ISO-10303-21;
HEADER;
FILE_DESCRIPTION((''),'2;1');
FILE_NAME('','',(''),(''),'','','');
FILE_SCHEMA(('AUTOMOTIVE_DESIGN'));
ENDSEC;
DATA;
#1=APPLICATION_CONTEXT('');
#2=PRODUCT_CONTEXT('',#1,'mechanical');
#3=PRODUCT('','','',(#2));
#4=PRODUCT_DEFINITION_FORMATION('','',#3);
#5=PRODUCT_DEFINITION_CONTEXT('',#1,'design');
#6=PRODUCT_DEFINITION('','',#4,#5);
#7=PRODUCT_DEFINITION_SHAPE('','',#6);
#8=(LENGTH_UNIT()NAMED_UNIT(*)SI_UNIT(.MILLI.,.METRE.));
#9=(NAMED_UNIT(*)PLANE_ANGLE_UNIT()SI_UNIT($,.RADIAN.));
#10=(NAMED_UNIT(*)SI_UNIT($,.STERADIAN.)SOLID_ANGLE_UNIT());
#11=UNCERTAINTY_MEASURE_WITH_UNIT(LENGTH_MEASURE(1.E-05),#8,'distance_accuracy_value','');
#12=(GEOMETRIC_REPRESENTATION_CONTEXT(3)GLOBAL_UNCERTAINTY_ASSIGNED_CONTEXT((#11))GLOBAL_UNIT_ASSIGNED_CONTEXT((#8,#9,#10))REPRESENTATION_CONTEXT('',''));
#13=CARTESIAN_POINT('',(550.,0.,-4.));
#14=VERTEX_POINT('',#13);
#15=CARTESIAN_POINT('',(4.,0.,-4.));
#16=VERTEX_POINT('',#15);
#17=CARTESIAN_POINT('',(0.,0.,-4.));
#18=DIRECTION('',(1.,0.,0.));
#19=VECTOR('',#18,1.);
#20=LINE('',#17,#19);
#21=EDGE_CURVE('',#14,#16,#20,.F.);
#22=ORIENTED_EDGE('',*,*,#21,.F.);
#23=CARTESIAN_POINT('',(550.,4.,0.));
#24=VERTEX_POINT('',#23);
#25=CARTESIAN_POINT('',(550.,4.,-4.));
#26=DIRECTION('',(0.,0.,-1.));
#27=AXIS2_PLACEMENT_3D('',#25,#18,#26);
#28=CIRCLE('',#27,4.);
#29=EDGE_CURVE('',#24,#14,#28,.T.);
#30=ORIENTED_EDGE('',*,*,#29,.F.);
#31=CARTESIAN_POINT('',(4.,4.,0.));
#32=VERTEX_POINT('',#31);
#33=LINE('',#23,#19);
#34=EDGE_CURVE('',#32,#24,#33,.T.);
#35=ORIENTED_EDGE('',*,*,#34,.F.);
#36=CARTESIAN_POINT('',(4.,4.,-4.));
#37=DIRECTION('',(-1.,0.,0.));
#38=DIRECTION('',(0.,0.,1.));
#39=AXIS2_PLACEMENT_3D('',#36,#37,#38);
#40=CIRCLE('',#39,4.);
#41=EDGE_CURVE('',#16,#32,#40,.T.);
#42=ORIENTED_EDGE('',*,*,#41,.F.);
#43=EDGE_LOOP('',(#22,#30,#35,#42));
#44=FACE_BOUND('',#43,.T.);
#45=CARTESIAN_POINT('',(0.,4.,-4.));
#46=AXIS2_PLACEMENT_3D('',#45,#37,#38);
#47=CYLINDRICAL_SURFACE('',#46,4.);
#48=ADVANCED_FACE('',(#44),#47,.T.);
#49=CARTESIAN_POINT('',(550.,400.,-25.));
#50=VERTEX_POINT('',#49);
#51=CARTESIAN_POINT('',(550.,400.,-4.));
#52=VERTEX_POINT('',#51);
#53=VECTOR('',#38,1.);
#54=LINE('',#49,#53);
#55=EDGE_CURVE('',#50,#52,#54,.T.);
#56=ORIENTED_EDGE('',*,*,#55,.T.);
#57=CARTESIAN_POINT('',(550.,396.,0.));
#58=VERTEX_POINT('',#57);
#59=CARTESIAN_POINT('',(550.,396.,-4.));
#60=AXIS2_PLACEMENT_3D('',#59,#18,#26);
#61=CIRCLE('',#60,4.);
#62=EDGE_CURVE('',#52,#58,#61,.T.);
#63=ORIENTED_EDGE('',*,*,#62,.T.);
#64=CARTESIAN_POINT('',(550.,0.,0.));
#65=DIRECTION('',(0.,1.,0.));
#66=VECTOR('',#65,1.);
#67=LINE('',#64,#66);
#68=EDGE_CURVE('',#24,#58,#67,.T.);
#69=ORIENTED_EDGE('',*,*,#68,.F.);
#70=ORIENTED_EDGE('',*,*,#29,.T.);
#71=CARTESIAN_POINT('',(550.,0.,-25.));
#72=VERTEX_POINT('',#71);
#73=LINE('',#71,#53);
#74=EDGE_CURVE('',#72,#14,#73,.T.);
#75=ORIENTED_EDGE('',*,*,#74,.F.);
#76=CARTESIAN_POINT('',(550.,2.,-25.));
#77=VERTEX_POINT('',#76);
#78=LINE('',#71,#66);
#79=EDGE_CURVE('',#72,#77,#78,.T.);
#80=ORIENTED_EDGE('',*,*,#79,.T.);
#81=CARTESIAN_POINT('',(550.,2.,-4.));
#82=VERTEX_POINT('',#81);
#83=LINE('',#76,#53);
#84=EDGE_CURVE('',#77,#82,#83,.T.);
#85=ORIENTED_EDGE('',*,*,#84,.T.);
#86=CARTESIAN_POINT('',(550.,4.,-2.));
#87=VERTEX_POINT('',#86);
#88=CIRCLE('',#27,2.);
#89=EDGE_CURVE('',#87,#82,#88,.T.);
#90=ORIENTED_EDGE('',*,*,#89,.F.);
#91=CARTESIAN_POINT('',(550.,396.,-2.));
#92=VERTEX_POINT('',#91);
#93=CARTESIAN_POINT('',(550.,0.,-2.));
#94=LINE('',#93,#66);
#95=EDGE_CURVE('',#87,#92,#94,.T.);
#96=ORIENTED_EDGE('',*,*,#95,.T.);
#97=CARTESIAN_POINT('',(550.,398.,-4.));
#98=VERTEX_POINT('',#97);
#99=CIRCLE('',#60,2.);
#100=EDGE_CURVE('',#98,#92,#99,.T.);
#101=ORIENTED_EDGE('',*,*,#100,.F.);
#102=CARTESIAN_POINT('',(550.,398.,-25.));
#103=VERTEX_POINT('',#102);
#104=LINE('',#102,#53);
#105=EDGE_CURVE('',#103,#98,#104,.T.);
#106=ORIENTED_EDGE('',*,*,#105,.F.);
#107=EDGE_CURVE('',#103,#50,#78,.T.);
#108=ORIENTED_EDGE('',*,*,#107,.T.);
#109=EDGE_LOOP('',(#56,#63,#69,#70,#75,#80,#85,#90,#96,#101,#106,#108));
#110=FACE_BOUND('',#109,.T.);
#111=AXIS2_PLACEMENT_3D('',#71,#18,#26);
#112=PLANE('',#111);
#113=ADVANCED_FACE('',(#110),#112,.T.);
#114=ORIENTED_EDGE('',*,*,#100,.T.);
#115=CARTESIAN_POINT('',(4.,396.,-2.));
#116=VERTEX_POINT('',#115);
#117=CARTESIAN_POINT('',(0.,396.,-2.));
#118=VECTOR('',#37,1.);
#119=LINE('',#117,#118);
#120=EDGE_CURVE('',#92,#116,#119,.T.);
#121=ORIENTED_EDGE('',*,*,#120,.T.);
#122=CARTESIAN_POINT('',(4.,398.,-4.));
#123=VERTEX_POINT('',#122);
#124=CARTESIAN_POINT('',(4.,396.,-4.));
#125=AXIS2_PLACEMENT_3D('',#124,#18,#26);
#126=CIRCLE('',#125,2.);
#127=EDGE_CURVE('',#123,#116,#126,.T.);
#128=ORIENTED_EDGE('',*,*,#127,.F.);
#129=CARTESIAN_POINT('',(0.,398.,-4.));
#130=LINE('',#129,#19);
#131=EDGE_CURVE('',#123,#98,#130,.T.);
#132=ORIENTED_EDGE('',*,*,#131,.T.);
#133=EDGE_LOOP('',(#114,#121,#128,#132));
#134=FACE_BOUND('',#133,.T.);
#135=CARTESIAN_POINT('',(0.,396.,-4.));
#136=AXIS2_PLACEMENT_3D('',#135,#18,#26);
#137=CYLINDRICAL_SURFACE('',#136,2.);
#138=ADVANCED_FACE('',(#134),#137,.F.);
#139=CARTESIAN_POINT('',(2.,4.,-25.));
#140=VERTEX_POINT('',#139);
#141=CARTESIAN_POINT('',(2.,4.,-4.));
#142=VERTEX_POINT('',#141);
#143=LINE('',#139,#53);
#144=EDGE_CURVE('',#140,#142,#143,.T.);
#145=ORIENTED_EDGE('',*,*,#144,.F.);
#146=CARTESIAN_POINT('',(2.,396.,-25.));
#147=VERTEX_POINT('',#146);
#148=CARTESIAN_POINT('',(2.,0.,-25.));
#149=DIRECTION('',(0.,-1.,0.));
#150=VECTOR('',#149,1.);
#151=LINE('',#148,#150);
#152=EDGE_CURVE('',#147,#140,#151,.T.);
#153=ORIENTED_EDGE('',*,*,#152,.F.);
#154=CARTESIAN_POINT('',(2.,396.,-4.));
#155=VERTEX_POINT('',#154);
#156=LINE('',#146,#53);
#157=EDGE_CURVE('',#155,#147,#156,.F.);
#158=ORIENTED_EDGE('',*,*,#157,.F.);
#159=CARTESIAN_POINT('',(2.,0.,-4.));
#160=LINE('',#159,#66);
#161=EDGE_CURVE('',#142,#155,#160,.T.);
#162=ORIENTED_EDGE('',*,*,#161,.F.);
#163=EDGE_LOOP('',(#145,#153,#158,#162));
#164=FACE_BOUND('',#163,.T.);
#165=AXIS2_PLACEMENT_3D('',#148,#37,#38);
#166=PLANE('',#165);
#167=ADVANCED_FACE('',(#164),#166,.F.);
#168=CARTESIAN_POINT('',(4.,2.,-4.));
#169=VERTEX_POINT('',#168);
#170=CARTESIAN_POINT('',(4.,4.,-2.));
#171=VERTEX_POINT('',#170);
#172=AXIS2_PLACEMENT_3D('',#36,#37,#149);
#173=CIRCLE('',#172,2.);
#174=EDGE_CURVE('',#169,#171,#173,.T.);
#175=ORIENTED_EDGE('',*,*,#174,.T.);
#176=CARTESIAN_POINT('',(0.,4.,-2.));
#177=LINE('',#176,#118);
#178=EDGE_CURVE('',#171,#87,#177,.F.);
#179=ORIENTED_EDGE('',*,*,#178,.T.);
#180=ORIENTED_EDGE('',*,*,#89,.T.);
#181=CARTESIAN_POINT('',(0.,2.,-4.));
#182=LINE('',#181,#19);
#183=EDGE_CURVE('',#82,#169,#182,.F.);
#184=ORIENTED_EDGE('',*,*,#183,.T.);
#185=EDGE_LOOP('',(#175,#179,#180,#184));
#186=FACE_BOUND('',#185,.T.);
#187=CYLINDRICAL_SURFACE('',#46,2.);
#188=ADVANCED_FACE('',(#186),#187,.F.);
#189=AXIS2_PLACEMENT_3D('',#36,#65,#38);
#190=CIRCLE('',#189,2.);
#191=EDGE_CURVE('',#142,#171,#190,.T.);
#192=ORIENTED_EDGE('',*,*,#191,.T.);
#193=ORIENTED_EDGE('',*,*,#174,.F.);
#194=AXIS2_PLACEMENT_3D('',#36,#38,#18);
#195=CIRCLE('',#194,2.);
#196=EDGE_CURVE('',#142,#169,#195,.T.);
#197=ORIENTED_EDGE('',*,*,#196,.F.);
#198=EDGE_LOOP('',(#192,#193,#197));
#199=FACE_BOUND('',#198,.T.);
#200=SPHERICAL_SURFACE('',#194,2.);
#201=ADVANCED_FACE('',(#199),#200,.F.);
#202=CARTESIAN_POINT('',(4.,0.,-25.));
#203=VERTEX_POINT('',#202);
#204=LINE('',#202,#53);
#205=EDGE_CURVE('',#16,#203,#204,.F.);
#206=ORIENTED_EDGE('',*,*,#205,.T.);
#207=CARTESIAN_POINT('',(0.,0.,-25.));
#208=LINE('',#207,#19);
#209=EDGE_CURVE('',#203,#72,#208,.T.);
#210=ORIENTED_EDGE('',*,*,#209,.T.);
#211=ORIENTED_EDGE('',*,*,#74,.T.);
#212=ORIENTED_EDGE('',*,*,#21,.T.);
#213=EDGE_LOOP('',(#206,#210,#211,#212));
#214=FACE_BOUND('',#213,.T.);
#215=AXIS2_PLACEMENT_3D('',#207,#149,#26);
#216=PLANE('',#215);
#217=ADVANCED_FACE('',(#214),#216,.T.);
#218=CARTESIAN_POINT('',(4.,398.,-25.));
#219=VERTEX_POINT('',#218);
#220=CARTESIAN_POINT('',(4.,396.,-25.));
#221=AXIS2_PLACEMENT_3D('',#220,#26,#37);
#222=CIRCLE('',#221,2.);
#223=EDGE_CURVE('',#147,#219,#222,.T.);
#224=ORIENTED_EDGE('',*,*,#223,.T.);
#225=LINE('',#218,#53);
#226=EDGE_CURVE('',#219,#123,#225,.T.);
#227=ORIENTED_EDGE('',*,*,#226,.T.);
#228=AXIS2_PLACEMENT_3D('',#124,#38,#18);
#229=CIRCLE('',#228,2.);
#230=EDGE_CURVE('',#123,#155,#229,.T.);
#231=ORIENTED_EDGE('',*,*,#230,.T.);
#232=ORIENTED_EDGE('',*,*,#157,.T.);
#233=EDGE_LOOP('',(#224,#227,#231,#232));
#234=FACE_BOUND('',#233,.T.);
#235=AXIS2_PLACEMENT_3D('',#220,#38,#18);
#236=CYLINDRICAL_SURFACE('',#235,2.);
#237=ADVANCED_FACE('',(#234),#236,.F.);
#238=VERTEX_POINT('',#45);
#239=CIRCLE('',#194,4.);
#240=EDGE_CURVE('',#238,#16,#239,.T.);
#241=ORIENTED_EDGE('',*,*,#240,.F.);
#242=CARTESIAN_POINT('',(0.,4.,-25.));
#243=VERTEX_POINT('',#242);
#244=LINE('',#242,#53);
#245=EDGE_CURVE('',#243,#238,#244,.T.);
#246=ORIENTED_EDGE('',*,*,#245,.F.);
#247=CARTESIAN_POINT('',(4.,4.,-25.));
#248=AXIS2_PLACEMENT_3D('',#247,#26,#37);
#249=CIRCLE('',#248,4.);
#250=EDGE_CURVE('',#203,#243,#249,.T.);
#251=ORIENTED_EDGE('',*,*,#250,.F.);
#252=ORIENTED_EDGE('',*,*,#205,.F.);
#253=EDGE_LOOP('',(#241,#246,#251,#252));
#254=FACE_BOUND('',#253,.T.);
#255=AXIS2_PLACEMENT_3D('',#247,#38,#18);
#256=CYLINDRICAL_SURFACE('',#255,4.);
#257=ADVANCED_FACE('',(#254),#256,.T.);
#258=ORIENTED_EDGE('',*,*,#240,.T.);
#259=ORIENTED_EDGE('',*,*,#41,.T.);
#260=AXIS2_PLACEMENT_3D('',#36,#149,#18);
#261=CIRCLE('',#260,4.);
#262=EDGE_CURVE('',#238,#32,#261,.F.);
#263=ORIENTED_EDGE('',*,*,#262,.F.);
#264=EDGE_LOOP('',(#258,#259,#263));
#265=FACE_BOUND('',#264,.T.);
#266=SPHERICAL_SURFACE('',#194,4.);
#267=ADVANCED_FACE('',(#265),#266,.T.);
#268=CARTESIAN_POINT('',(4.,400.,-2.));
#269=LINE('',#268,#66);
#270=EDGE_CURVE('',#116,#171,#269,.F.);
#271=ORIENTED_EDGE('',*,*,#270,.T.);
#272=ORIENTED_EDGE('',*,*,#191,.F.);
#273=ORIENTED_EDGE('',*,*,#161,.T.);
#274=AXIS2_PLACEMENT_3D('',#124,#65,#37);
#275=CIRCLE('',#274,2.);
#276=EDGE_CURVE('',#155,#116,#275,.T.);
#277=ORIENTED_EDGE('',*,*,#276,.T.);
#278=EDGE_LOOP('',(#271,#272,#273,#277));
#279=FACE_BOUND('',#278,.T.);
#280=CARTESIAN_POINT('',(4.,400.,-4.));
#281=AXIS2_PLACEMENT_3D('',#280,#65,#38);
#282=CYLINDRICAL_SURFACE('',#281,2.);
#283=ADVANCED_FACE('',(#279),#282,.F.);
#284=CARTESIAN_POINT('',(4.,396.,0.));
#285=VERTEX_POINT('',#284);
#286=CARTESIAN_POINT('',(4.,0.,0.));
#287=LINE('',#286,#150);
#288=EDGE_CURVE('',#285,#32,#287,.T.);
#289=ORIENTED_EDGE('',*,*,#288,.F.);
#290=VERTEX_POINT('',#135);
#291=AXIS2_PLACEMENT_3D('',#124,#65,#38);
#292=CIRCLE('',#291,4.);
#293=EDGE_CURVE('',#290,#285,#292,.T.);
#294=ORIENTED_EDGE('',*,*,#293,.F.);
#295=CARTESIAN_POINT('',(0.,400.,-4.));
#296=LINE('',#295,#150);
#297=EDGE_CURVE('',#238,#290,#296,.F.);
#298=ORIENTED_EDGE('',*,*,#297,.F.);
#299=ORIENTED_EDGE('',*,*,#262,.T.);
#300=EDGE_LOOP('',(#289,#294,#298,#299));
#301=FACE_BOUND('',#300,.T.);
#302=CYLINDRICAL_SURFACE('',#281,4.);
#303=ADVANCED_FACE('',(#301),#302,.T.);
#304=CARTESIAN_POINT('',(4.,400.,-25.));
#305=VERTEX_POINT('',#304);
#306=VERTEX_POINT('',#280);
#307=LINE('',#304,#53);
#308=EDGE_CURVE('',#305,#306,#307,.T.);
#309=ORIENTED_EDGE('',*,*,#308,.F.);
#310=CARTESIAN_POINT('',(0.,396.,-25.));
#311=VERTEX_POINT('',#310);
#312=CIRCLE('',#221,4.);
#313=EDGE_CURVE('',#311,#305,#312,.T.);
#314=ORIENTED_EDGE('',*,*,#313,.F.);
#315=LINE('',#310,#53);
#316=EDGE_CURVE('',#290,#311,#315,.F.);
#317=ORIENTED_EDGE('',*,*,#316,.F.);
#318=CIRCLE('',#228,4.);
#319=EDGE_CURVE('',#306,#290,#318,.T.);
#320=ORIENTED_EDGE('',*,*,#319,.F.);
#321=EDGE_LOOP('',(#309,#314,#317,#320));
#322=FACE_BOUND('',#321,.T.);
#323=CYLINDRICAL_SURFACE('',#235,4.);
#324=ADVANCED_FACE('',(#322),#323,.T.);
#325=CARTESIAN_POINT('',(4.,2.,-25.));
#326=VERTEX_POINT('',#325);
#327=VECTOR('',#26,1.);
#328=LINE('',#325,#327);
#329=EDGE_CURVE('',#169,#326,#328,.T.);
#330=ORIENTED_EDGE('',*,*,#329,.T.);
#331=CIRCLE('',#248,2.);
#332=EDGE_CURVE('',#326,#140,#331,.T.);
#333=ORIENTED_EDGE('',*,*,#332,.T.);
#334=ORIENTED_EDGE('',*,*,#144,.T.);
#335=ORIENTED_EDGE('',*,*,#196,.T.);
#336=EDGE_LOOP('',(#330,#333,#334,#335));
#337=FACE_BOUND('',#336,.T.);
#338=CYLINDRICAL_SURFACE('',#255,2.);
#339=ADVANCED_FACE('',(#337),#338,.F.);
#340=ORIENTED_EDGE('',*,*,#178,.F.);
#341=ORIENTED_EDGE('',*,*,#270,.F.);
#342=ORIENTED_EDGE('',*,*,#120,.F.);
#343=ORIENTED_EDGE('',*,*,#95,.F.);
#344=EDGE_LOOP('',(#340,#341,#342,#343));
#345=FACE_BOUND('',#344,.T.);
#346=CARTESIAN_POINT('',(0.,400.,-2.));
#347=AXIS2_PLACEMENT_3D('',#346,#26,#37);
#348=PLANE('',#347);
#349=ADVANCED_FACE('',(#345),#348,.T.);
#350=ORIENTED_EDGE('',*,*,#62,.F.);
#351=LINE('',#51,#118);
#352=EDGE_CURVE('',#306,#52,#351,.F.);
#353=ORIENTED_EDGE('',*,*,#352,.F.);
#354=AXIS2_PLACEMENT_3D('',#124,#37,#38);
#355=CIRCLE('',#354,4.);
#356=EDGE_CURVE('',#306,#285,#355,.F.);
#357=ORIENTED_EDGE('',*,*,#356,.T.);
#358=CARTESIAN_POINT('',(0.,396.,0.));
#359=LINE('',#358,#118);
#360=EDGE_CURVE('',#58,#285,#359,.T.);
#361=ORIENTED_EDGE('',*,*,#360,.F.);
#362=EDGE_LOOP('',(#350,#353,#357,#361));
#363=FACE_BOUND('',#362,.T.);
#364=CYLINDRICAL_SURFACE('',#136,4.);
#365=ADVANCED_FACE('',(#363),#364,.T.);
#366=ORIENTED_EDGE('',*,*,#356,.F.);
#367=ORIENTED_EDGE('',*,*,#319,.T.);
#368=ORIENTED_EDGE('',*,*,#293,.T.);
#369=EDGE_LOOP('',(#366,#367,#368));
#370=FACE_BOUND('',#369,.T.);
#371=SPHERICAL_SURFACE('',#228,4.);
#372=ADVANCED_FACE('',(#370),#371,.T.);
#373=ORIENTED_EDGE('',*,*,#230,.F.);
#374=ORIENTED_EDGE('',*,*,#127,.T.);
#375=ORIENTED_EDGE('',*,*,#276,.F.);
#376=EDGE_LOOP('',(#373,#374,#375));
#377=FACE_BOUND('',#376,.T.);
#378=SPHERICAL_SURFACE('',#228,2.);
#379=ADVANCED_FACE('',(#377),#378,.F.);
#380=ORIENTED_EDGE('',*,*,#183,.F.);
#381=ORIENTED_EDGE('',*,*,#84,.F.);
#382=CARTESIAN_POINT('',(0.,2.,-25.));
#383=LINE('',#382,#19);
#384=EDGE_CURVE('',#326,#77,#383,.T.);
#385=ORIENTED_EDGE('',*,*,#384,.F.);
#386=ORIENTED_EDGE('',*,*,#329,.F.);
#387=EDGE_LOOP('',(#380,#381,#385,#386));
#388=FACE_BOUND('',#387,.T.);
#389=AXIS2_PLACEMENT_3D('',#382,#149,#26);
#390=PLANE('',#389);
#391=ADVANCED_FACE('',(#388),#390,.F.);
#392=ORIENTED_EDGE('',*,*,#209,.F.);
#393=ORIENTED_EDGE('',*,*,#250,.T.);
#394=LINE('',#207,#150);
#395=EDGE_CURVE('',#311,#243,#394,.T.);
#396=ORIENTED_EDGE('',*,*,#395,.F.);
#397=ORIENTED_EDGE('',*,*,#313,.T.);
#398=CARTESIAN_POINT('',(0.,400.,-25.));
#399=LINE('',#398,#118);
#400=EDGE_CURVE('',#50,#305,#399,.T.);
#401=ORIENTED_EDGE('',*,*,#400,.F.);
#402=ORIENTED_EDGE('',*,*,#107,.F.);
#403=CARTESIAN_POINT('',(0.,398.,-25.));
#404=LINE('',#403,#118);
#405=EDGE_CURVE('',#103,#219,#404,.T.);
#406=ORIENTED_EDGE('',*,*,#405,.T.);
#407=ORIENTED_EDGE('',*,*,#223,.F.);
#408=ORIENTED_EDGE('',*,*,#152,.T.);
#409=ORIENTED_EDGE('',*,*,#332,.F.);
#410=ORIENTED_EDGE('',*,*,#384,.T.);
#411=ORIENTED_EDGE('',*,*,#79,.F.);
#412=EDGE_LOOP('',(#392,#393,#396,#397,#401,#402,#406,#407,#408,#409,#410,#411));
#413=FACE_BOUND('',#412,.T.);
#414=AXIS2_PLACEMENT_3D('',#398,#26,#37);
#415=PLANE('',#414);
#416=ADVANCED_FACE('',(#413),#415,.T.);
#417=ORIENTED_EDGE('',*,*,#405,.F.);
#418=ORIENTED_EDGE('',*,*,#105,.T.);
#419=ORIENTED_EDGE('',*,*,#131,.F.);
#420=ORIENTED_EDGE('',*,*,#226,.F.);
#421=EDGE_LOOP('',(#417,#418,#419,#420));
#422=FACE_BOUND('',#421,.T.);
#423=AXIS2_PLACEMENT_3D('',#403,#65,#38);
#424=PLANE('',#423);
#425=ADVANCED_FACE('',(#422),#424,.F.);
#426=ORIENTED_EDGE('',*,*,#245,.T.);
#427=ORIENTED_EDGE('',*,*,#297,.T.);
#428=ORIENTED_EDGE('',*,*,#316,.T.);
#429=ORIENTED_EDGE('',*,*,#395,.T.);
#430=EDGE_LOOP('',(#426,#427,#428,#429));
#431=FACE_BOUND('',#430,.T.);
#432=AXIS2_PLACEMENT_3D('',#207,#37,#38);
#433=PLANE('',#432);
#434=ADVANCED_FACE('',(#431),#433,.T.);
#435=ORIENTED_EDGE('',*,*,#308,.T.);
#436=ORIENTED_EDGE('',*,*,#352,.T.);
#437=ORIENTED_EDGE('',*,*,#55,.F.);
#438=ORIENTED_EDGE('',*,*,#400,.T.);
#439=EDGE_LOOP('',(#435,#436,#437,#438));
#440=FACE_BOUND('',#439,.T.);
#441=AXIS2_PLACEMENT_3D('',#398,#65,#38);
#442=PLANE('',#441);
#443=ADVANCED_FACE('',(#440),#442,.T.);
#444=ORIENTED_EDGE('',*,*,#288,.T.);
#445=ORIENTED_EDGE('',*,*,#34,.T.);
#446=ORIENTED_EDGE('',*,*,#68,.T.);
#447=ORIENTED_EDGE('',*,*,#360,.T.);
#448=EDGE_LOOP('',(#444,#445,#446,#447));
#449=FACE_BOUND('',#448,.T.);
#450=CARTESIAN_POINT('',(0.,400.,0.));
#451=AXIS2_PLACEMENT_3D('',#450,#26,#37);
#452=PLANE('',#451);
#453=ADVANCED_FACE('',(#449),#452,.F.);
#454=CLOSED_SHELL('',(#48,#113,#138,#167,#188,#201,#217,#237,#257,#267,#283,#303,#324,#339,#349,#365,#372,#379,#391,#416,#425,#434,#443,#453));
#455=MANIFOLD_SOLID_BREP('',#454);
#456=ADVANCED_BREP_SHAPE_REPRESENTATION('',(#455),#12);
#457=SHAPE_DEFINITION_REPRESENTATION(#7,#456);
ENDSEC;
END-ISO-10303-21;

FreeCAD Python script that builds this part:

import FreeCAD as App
import Part
import Sketcher

V = App.Vector
Q = App.Units.Quantity


def edges_at(feature, points):
    """Names of the edges that pass closest to the given points."""
    edges = feature.Shape.Edges
    near = lambda p: min(range(len(edges)), key=lambda i: edges[i].distToShape(Part.Vertex(*p))[0])
    return sorted({f"Edge{near(p) + 1}" for p in points})


def faces_at(feature, points):
    """Names of the faces that lie closest to the given points."""
    faces = feature.Shape.Faces
    near = lambda p: min(range(len(faces)), key=lambda i: faces[i].distToShape(Part.Vertex(*p))[0])
    return sorted({f"Face{near(p) + 1}" for p in points})

doc = App.newDocument("Part")
body = doc.addObject("PartDesign::Body", "Body")

# Sketch on XY plane
sketch1 = doc.addObject("Sketcher::SketchObject", "Sketch")
body.addObject(sketch1)
sketch1.AttachmentSupport = (doc.XY_Plane, [""])
sketch1.MapMode = "FlatFace"
sketch1.addGeometry([
    Part.LineSegment(V(0, 400, 0), V(0, 0, 0)),
    Part.LineSegment(V(0, 0, 0), V(550, 0, 0)),
    Part.LineSegment(V(550, 0, 0), V(550, 400, 0)),
    Part.LineSegment(V(550, 400, 0), V(0, 400, 0)),
], False)
sketch1.addConstraint([
    Sketcher.Constraint("Coincident", 0, 2, 1, 1),
    Sketcher.Constraint("Coincident", 1, 2, 2, 1),
    Sketcher.Constraint("Coincident", 2, 2, 3, 1),
    Sketcher.Constraint("Coincident", 3, 2, 0, 1),
    Sketcher.Constraint("Vertical", 0),
    Sketcher.Constraint("Horizontal", 1),
    Sketcher.Constraint("Vertical", 2),
    Sketcher.Constraint("Horizontal", 3),
    Sketcher.Constraint("Coincident", 0, 2, -1, 1),
    Sketcher.Constraint("DistanceX", 1, 1, 1, 2, Q("550 mm")),
    Sketcher.Constraint("DistanceY", 0, 2, 0, 1, Q("400 mm")),
])
pad1 = doc.addObject("PartDesign::Pad", "Pad")
body.addObject(pad1)
pad1.Profile = sketch1
pad1.Length = 25
pad1.Reversed = True
doc.recompute()

fillet = doc.addObject("PartDesign::Fillet", "Fillet")
body.addObject(fillet)
fillet.Base = (pad1, edges_at(pad1, [
    (275, 400, 0),
    (275, 0, 0),
    (0, 200, 0),
    (0, 400, -12.5),
    (0, 0, -12.5),
]))
fillet.Radius = 4
doc.recompute()

thickness = doc.addObject("PartDesign::Thickness", "Thickness")
body.addObject(thickness)
thickness.Base = (fillet, faces_at(fillet, [(275, 200, -25), (550, 200, -12.5)]))
thickness.Value = 2
thickness.Reversed = True
thickness.Join = "Intersection"

doc.recompute()
